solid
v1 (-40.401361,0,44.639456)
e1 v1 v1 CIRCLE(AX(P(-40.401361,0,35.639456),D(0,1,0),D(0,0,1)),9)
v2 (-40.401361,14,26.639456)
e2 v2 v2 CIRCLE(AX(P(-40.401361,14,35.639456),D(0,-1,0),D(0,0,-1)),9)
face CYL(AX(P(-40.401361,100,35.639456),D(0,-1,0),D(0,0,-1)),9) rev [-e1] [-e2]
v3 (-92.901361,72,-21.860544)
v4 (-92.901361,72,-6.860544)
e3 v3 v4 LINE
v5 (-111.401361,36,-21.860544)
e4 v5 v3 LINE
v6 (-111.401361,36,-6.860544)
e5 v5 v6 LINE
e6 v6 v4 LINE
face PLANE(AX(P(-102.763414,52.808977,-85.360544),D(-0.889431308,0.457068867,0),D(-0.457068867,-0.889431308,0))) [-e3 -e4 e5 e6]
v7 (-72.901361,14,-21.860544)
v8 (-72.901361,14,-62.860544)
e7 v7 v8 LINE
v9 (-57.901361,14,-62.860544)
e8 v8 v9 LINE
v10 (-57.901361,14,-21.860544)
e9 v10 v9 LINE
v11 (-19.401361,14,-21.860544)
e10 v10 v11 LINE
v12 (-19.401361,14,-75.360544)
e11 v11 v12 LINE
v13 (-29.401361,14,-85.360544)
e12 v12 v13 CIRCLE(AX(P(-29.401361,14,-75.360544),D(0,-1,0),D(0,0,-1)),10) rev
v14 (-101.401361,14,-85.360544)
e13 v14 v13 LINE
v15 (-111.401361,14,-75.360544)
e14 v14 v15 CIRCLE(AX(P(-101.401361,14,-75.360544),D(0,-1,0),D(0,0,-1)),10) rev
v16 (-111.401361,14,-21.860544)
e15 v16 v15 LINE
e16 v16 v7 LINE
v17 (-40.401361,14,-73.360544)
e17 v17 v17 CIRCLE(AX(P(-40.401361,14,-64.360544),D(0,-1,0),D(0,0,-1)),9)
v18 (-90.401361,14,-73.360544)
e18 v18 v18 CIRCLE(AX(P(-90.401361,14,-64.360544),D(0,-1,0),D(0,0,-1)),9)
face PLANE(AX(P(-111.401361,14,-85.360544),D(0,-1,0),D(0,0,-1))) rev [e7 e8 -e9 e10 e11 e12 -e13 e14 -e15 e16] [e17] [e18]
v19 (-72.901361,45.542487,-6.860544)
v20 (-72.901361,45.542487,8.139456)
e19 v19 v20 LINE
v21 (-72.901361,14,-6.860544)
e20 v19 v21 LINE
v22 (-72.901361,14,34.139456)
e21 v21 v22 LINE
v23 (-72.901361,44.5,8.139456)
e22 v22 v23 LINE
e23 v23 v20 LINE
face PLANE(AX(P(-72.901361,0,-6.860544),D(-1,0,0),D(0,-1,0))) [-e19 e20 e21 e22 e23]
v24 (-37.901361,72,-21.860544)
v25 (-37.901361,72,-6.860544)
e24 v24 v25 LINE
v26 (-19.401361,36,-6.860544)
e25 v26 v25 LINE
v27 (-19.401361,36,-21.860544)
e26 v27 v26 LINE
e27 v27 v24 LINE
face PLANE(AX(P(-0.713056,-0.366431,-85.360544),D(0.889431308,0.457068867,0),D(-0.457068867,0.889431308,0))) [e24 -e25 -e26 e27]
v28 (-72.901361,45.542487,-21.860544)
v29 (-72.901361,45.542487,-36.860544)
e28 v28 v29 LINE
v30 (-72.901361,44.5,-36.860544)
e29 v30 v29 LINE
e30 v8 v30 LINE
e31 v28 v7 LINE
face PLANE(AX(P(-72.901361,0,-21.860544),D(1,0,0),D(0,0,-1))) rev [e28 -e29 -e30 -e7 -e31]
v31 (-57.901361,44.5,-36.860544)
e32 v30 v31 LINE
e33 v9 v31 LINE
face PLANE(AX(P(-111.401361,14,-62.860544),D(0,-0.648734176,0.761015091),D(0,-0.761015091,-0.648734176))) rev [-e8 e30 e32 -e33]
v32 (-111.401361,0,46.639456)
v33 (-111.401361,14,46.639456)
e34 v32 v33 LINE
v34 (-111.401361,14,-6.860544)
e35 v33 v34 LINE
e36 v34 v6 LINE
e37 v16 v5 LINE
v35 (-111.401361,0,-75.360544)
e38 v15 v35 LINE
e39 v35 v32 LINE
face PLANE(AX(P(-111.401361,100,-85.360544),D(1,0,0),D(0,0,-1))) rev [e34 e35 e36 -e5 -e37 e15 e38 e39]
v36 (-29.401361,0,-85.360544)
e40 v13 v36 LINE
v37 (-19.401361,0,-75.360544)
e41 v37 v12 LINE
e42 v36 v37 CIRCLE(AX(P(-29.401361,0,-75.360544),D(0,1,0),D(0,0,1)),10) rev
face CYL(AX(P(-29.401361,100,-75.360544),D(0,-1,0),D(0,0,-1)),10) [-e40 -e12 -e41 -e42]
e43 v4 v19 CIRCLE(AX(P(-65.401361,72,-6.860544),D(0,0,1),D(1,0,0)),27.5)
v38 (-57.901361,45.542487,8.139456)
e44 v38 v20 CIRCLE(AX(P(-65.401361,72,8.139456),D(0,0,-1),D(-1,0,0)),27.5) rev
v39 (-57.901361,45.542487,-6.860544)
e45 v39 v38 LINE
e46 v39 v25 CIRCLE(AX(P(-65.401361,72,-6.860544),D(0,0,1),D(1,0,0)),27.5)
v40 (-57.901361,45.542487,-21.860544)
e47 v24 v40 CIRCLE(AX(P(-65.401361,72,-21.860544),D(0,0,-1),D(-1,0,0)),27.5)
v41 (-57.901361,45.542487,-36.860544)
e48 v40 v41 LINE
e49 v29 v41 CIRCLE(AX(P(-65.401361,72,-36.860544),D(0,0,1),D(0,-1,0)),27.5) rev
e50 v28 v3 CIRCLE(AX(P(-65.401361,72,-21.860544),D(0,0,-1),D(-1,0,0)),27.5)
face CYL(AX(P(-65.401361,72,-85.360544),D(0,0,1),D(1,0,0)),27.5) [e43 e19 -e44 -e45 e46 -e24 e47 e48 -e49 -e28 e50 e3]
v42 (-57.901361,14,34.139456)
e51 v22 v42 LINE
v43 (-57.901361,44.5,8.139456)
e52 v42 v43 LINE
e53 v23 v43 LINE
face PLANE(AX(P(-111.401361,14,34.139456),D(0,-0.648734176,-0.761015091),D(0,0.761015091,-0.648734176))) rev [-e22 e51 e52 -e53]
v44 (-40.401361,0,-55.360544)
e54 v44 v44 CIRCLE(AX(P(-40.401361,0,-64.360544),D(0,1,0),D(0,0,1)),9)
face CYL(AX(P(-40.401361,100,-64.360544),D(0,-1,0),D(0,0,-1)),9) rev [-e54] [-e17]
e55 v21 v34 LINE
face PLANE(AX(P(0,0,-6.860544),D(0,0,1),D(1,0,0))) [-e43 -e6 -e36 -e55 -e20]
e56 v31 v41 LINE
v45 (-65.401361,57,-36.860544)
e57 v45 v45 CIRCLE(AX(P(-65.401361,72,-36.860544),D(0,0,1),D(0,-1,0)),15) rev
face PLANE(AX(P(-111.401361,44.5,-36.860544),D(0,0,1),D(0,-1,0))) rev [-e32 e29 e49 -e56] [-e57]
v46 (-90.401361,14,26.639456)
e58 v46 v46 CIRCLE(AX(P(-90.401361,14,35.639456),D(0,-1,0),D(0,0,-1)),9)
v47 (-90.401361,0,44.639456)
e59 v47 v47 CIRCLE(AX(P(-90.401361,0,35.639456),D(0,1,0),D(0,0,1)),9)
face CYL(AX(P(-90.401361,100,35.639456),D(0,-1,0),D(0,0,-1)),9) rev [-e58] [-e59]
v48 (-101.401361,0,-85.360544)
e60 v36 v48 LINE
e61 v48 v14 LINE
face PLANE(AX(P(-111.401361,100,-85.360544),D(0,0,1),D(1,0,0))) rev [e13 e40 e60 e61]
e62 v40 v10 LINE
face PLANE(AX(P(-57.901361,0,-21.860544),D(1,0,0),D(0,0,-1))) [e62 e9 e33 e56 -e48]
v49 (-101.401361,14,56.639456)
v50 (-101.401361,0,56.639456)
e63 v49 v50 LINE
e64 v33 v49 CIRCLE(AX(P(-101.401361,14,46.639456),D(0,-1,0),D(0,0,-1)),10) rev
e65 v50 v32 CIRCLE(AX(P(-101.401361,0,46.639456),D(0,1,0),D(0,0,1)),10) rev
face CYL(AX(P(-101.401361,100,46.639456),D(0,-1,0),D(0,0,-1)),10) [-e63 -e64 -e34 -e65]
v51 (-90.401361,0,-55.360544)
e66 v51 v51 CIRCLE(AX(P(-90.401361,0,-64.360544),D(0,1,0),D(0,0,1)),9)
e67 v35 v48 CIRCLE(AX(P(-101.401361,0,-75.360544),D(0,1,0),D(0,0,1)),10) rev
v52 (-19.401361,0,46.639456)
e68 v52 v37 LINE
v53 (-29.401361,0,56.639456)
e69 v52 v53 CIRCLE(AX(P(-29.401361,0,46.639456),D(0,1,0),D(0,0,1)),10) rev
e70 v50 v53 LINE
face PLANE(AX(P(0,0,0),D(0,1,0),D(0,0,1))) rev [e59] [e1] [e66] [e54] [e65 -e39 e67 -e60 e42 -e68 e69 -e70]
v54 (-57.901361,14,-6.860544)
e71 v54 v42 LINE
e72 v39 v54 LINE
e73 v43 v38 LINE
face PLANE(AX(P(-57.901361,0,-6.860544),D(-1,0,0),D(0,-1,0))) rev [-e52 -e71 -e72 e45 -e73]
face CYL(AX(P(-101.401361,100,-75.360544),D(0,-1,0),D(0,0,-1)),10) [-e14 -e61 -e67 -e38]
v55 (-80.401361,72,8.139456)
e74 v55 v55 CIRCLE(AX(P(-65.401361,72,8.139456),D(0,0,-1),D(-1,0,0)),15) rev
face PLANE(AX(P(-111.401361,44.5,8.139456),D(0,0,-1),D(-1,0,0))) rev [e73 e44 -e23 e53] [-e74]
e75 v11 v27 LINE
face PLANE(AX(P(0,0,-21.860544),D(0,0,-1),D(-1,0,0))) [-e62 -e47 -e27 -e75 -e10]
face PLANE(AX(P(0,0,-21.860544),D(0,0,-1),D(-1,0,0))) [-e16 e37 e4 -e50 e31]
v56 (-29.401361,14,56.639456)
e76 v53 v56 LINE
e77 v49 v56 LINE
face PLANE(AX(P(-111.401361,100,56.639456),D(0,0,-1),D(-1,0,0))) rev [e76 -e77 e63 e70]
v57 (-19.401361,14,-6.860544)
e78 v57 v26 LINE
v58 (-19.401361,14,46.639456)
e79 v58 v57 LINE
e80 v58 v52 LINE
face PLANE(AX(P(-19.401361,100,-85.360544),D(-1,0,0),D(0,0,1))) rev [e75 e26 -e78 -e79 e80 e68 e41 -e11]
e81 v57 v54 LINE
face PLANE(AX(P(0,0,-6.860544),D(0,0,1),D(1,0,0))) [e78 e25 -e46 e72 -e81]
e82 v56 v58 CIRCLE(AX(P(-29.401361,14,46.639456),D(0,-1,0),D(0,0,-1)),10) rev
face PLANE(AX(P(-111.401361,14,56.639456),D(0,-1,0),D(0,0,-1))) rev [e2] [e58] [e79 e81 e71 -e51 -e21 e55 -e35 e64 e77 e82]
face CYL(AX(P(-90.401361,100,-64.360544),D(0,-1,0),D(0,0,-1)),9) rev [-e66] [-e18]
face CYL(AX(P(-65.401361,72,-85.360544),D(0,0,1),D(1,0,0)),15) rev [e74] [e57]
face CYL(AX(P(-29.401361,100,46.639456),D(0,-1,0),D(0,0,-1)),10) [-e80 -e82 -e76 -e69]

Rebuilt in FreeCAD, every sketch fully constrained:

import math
import FreeCAD as App
import Part
import Sketcher


def edges_at(feature, points):
    """Names of the edges that pass closest to the given points."""
    edges = feature.Shape.Edges
    near = lambda p: min(range(len(edges)), key=lambda i: edges[i].distToShape(Part.Vertex(*p))[0])
    return sorted({f"Edge{near(p) + 1}" for p in points})


def add_polygon(sketch, points):
    """Adds a closed chain of lines whose ends are joined by coincident constraints."""
    first, n = sketch.GeometryCount, len(points)
    for a, b in zip(points, points[1:] + points[:1]):
        sketch.addGeometry(Part.LineSegment(App.Vector(*a, 0), App.Vector(*b, 0)), False)
    for i in range(n):
        sketch.addConstraint(Sketcher.Constraint("Coincident", first + i, 2, first + (i + 1) % n, 1))

doc = App.newDocument("Part")
body = doc.addObject("PartDesign::Body", "Body")

# Sketch on XZ plane
sketch1 = body.newObject("Sketcher::SketchObject", "Sketch")
sketch1.AttachmentSupport = (doc.getObject("XZ_Plane"), [""])
sketch1.MapMode = "FlatFace"
add_polygon(sketch1, [(-111, -85), (-111, 57), (-19, 57), (-19, -85)])  # lines 0-3
sketch1.addGeometry(Part.Circle(App.Vector(-90, 36, 0), App.Vector(0, 0, 1), 9), False)  # 4
sketch1.addGeometry(Part.Circle(App.Vector(-40, 36, 0), App.Vector(0, 0, 1), 9), False)  # 5
sketch1.addGeometry(Part.Circle(App.Vector(-90, -64, 0), App.Vector(0, 0, 1), 9), False)  # 6
sketch1.addGeometry(Part.Circle(App.Vector(-40, -64, 0), App.Vector(0, 0, 1), 9), False)  # 7
sketch1.addConstraint(Sketcher.Constraint("Vertical", 0))
sketch1.addConstraint(Sketcher.Constraint("Horizontal", 1))
sketch1.addConstraint(Sketcher.Constraint("Vertical", 2))
sketch1.addConstraint(Sketcher.Constraint("Horizontal", 3))
sketch1.addConstraint(Sketcher.Constraint("Equal", 4, 5))
sketch1.addConstraint(Sketcher.Constraint("Equal", 5, 6))
sketch1.addConstraint(Sketcher.Constraint("Equal", 6, 7))
sketch1.addConstraint(Sketcher.Constraint("Horizontal", 4, 3, 5, 3))
sketch1.addConstraint(Sketcher.Constraint("Horizontal", 6, 3, 7, 3))
sketch1.addConstraint(Sketcher.Constraint("Vertical", 4, 3, 6, 3))
sketch1.addConstraint(Sketcher.Constraint("Vertical", 5, 3, 7, 3))
sketch1.addConstraint(Sketcher.Constraint("Diameter", 4, 18.0))
sketch1.addConstraint(Sketcher.Constraint("DistanceX", 1, 1, 1, 2, 92.0))
sketch1.addConstraint(Sketcher.Constraint("DistanceY", 0, 1, 0, 2, 142.0))
sketch1.addConstraint(Sketcher.Constraint("DistanceX", 4, 3, 5, 3, 50.0))
sketch1.addConstraint(Sketcher.Constraint("DistanceY", 6, 3, 4, 3, 100.0))
sketch1.addConstraint(Sketcher.Constraint("DistanceX", 0, 2, 4, 3, 21.0))
sketch1.addConstraint(Sketcher.Constraint("DistanceY", 4, 3, 0, 2, 21.0))
sketch1.addConstraint(Sketcher.Constraint("DistanceX", 4, 3, -1, 1, 90.401361))
sketch1.addConstraint(Sketcher.Constraint("DistanceY", -1, 1, 4, 3, 35.639456))
pad1 = body.newObject("PartDesign::Pad", "Pad")
pad1.Profile = sketch1
pad1.Length = 100
pad1.Reversed = True

# Sketch on XY plane
sketch2 = body.newObject("Sketcher::SketchObject", "Sketch001")
sketch2.AttachmentSupport = (doc.getObject("XY_Plane"), [""])
sketch2.MapMode = "FlatFace"
sketch2.AttachmentOffset = App.Placement(App.Vector(0, 0, 56.639456), App.Rotation())
sketch2.addGeometry(Part.LineSegment(App.Vector(-111, 36, 0), App.Vector(-93, 72, 0)), False)
sketch2.addGeometry(Part.ArcOfCircle(Part.Circle(App.Vector(-65, 72, 0), App.Vector(0, 0, 1), 28), math.radians(0), math.radians(180)), False)
sketch2.addGeometry(Part.LineSegment(App.Vector(-38, 72, 0), App.Vector(-19, 36, 0)), False)
sketch2.addGeometry(Part.LineSegment(App.Vector(-19, 36, 0), App.Vector(-19, 100, 0)), False)
sketch2.addGeometry(Part.LineSegment(App.Vector(-19, 100, 0), App.Vector(-111, 100, 0)), False)
sketch2.addGeometry(Part.LineSegment(App.Vector(-111, 100, 0), App.Vector(-111, 36, 0)), False)
sketch2.addGeometry(Part.Circle(App.Vector(-65, 72, 0), App.Vector(0, 0, 1), 15), False)
sketch2.addConstraint(Sketcher.Constraint("Coincident", 0, 2, 1, 2))
sketch2.addConstraint(Sketcher.Constraint("Coincident", 1, 1, 2, 1))
sketch2.addConstraint(Sketcher.Constraint("Coincident", 2, 2, 3, 1))
sketch2.addConstraint(Sketcher.Constraint("Coincident", 3, 2, 4, 1))
sketch2.addConstraint(Sketcher.Constraint("Coincident", 4, 2, 5, 1))
sketch2.addConstraint(Sketcher.Constraint("Coincident", 5, 2, 0, 1))
sketch2.addConstraint(Sketcher.Constraint("Vertical", 3))
sketch2.addConstraint(Sketcher.Constraint("Horizontal", 4))
sketch2.addConstraint(Sketcher.Constraint("Vertical", 5))
sketch2.addConstraint(Sketcher.Constraint("Coincident", 6, 3, 1, 3))
sketch2.addConstraint(Sketcher.Constraint("Horizontal", 6, 3, 0, 2))
sketch2.addConstraint(Sketcher.Constraint("Horizontal", 0, 2, 1, 1))
sketch2.addConstraint(Sketcher.Constraint("Horizontal", 2, 2, 5, 2))
sketch2.addConstraint(Sketcher.Constraint("Equal", 0, 2))
sketch2.addConstraint(Sketcher.Constraint("Diameter", 6, 30.0))
sketch2.addConstraint(Sketcher.Constraint("Radius", 1, 27.5))
sketch2.addConstraint(Sketcher.Constraint("DistanceX", 4, 2, 4, 1, 92.0))
sketch2.addConstraint(Sketcher.Constraint("DistanceY", 3, 1, 3, 2, 64.0))
sketch2.addConstraint(Sketcher.Constraint("DistanceY", -1, 1, 1, 3, 72.0))
sketch2.addConstraint(Sketcher.Constraint("DistanceY", -1, 1, 2, 2, 36.0))
sketch2.addConstraint(Sketcher.Constraint("DistanceX", 1, 3, -1, 1, 65.401361))
pocket1 = body.newObject("PartDesign::Pocket", "Pocket")
pocket1.Profile = sketch2
pocket1.Length = 142

# Sketch on YZ plane
sketch3 = body.newObject("Sketcher::SketchObject", "Sketch002")
sketch3.AttachmentSupport = (doc.getObject("YZ_Plane"), [""])
sketch3.MapMode = "FlatFace"
sketch3.AttachmentOffset = App.Placement(App.Vector(0, 0, -19.401361), App.Rotation())
add_polygon(sketch3, [(44, -37), (14, -63), (14, -85), (100, -85), (100, -37)])  # lines 0-4
add_polygon(sketch3, [(14, 57), (14, 34), (44, 8), (100, 8), (100, 57)])  # lines 5-9
sketch3.addConstraint(Sketcher.Constraint("Vertical", 1))
sketch3.addConstraint(Sketcher.Constraint("Horizontal", 2))
sketch3.addConstraint(Sketcher.Constraint("Vertical", 3))
sketch3.addConstraint(Sketcher.Constraint("Horizontal", 4))
sketch3.addConstraint(Sketcher.Constraint("Vertical", 5))
sketch3.addConstraint(Sketcher.Constraint("Horizontal", 7))
sketch3.addConstraint(Sketcher.Constraint("Vertical", 8))
sketch3.addConstraint(Sketcher.Constraint("Horizontal", 9))
sketch3.addConstraint(Sketcher.Constraint("Vertical", 1, 2, 5, 2))
sketch3.addConstraint(Sketcher.Constraint("Vertical", 4, 2, 6, 2))
sketch3.addConstraint(Sketcher.Constraint("Vertical", 3, 2, 7, 2))
sketch3.addConstraint(Sketcher.Constraint("Equal", 1, 5))
sketch3.addConstraint(Sketcher.Constraint("Equal", 3, 8))
sketch3.addConstraint(Sketcher.Constraint("DistanceX", 4, 2, 4, 1, 55.0))
sketch3.addConstraint(Sketcher.Constraint("DistanceX", 2, 1, 2, 2, 85.5))
sketch3.addConstraint(Sketcher.Constraint("DistanceY", 1, 2, 1, 1, 22.5))
sketch3.addConstraint(Sketcher.Constraint("DistanceY", 3, 1, 3, 2, 48.5))
sketch3.addConstraint(Sketcher.Constraint("DistanceX", -1, 1, 0, 2, 14.0))
sketch3.addConstraint(Sketcher.Constraint("DistanceY", 4, 2, 5, 2, 71.0))
sketch3.addConstraint(Sketcher.Constraint("DistanceY", 0, 2, -1, 1, 62.860544))
pocket2 = body.newObject("PartDesign::Pocket", "Pocket001")
pocket2.Profile = sketch3
pocket2.Length = 92

# Sketch on XY plane
sketch4 = body.newObject("Sketcher::SketchObject", "Sketch003")
sketch4.AttachmentSupport = (doc.getObject("XY_Plane"), [""])
sketch4.MapMode = "FlatFace"
sketch4.AttachmentOffset = App.Placement(App.Vector(0, 0, 56.639456), App.Rotation())
sketch4.addGeometry(Part.LineSegment(App.Vector(-93, 72, 0), App.Vector(-111, 36, 0)), False)
sketch4.addGeometry(Part.LineSegment(App.Vector(-111, 36, 0), App.Vector(-111, 14, 0)), False)
sketch4.addGeometry(Part.LineSegment(App.Vector(-111, 14, 0), App.Vector(-73, 14, 0)), False)
sketch4.addGeometry(Part.LineSegment(App.Vector(-73, 14, 0), App.Vector(-73, 46, 0)), False)
sketch4.addGeometry(Part.ArcOfCircle(Part.Circle(App.Vector(-65, 72, 0), App.Vector(0, 0, 1), 27), math.radians(180), math.radians(254)), False)
sketch4.addGeometry(Part.LineSegment(App.Vector(-19, 36, 0), App.Vector(-38, 72, 0)), False)
sketch4.addGeometry(Part.ArcOfCircle(Part.Circle(App.Vector(-65, 72, 0), App.Vector(0, 0, 1), 28), math.radians(-74), math.radians(0)), False)
sketch4.addGeometry(Part.LineSegment(App.Vector(-58, 46, 0), App.Vector(-58, 14, 0)), False)
sketch4.addGeometry(Part.LineSegment(App.Vector(-58, 14, 0), App.Vector(-19, 14, 0)), False)
sketch4.addGeometry(Part.LineSegment(App.Vector(-19, 14, 0), App.Vector(-19, 36, 0)), False)
sketch4.addConstraint(Sketcher.Constraint("Coincident", 0, 2, 1, 1))
sketch4.addConstraint(Sketcher.Constraint("Coincident", 1, 2, 2, 1))
sketch4.addConstraint(Sketcher.Constraint("Coincident", 2, 2, 3, 1))
sketch4.addConstraint(Sketcher.Constraint("Coincident", 3, 2, 4, 2))
sketch4.addConstraint(Sketcher.Constraint("Coincident", 4, 1, 0, 1))
sketch4.addConstraint(Sketcher.Constraint("Coincident", 5, 2, 6, 2))
sketch4.addConstraint(Sketcher.Constraint("Coincident", 6, 1, 7, 1))
sketch4.addConstraint(Sketcher.Constraint("Coincident", 7, 2, 8, 1))
sketch4.addConstraint(Sketcher.Constraint("Coincident", 8, 2, 9, 1))
sketch4.addConstraint(Sketcher.Constraint("Coincident", 9, 2, 5, 1))
sketch4.addConstraint(Sketcher.Constraint("Vertical", 1))
sketch4.addConstraint(Sketcher.Constraint("Horizontal", 2))
sketch4.addConstraint(Sketcher.Constraint("Vertical", 3))
sketch4.addConstraint(Sketcher.Constraint("Vertical", 7))
sketch4.addConstraint(Sketcher.Constraint("Horizontal", 8))
sketch4.addConstraint(Sketcher.Constraint("Vertical", 9))
sketch4.addConstraint(Sketcher.Constraint("Coincident", 6, 3, 4, 3))
sketch4.addConstraint(Sketcher.Constraint("Equal", 4, 6))
sketch4.addConstraint(Sketcher.Constraint("Horizontal", 6, 3, 4, 1))
sketch4.addConstraint(Sketcher.Constraint("Horizontal", 4, 1, 5, 2))
sketch4.addConstraint(Sketcher.Constraint("Horizontal", 3, 2, 6, 1))
sketch4.addConstraint(Sketcher.Constraint("Horizontal", 2, 2, 7, 2))
sketch4.addConstraint(Sketcher.Constraint("Horizontal", 0, 2, 9, 2))
sketch4.addConstraint(Sketcher.Constraint("Equal", 2, 8))
sketch4.addConstraint(Sketcher.Constraint("Radius", 4, 27.5))
sketch4.addConstraint(Sketcher.Constraint("DistanceY", 1, 2, 1, 1, 22.0))
sketch4.addConstraint(Sketcher.Constraint("DistanceX", 2, 1, 2, 2, 38.5))
sketch4.addConstraint(Sketcher.Constraint("DistanceY", -1, 1, 4, 3, 72.0))
sketch4.addConstraint(Sketcher.Constraint("DistanceY", -1, 1, 0, 2, 36.0))
sketch4.addConstraint(Sketcher.Constraint("DistanceX", 0, 2, 4, 3, 46.0))
sketch4.addConstraint(Sketcher.Constraint("DistanceX", 4, 3, -1, 1, 65.401361))
pocket3 = body.newObject("PartDesign::Pocket", "Pocket002")
pocket3.Profile = sketch4
pocket3.Length = 63.5

# Sketch on XY plane
sketch5 = body.newObject("Sketcher::SketchObject", "Sketch004")
sketch5.AttachmentSupport = (doc.getObject("XY_Plane"), [""])
sketch5.MapMode = "FlatFace"
sketch5.AttachmentOffset = App.Placement(App.Vector(0, 0, -85.360544), App.Rotation())
sketch5.addGeometry(Part.LineSegment(App.Vector(-58, 14, 0), App.Vector(-58, 46, 0)), False)
sketch5.addGeometry(Part.ArcOfCircle(Part.Circle(App.Vector(-65, 72, 0), App.Vector(0, 0, 1), 28), math.radians(-74), math.radians(0)), False)
sketch5.addGeometry(Part.LineSegment(App.Vector(-38, 72, 0), App.Vector(-19, 36, 0)), False)
sketch5.addGeometry(Part.LineSegment(App.Vector(-19, 36, 0), App.Vector(-19, 14, 0)), False)
sketch5.addGeometry(Part.LineSegment(App.Vector(-19, 14, 0), App.Vector(-58, 14, 0)), False)
sketch5.addGeometry(Part.ArcOfCircle(Part.Circle(App.Vector(-65, 72, 0), App.Vector(0, 0, 1), 27), math.radians(180), math.radians(254)), False)
sketch5.addGeometry(Part.LineSegment(App.Vector(-73, 46, 0), App.Vector(-73, 14, 0)), False)
sketch5.addGeometry(Part.LineSegment(App.Vector(-73, 14, 0), App.Vector(-111, 14, 0)), False)
sketch5.addGeometry(Part.LineSegment(App.Vector(-111, 14, 0), App.Vector(-111, 36, 0)), False)
sketch5.addGeometry(Part.LineSegment(App.Vector(-111, 36, 0), App.Vector(-93, 72, 0)), False)
sketch5.addConstraint(Sketcher.Constraint("Coincident", 0, 2, 1, 1))
sketch5.addConstraint(Sketcher.Constraint("Coincident", 1, 2, 2, 1))
sketch5.addConstraint(Sketcher.Constraint("Coincident", 2, 2, 3, 1))
sketch5.addConstraint(Sketcher.Constraint("Coincident", 3, 2, 4, 1))
sketch5.addConstraint(Sketcher.Constraint("Coincident", 4, 2, 0, 1))
sketch5.addConstraint(Sketcher.Constraint("Coincident", 5, 2, 6, 1))
sketch5.addConstraint(Sketcher.Constraint("Coincident", 6, 2, 7, 1))
sketch5.addConstraint(Sketcher.Constraint("Coincident", 7, 2, 8, 1))
sketch5.addConstraint(Sketcher.Constraint("Coincident", 8, 2, 9, 1))
sketch5.addConstraint(Sketcher.Constraint("Coincident", 9, 2, 5, 1))
sketch5.addConstraint(Sketcher.Constraint("Vertical", 0))
sketch5.addConstraint(Sketcher.Constraint("Vertical", 3))
sketch5.addConstraint(Sketcher.Constraint("Horizontal", 4))
sketch5.addConstraint(Sketcher.Constraint("Vertical", 6))
sketch5.addConstraint(Sketcher.Constraint("Horizontal", 7))
sketch5.addConstraint(Sketcher.Constraint("Vertical", 8))
sketch5.addConstraint(Sketcher.Constraint("Coincident", 5, 3, 1, 3))
sketch5.addConstraint(Sketcher.Constraint("Equal", 1, 5))
sketch5.addConstraint(Sketcher.Constraint("Horizontal", 5, 3, 1, 2))
sketch5.addConstraint(Sketcher.Constraint("Horizontal", 0, 2, 5, 2))
sketch5.addConstraint(Sketcher.Constraint("Horizontal", 4, 2, 6, 2))
sketch5.addConstraint(Sketcher.Constraint("Horizontal", 2, 2, 8, 2))
sketch5.addConstraint(Sketcher.Constraint("Horizontal", 1, 2, 9, 2))
sketch5.addConstraint(Sketcher.Constraint("Equal", 4, 7))
sketch5.addConstraint(Sketcher.Constraint("Radius", 1, 27.5))
sketch5.addConstraint(Sketcher.Constraint("DistanceY", 3, 2, 3, 1, 22.0))
sketch5.addConstraint(Sketcher.Constraint("DistanceX", 4, 2, 4, 1, 38.5))
sketch5.addConstraint(Sketcher.Constraint("DistanceY", -1, 1, 1, 3, 72.0))
sketch5.addConstraint(Sketcher.Constraint("DistanceY", -1, 1, 2, 2, 36.0))
sketch5.addConstraint(Sketcher.Constraint("DistanceX", 0, 2, 1, 2, 20.0))
sketch5.addConstraint(Sketcher.Constraint("DistanceX", 1, 3, -1, 1, 65.401361))
pocket4 = body.newObject("PartDesign::Pocket", "Pocket003")
pocket4.Profile = sketch5
pocket4.Length = 63.5
pocket4.Reversed = True
doc.recompute()

fillet = body.newObject("PartDesign::Fillet", "Fillet")
fillet.Base = (pocket4, edges_at(pocket4, [
    (-19.401, 7, -85.361),
    (-111.401, 7, -85.361),
    (-19.401, 7, 56.639),
    (-111.401, 7, 56.639),
]))
fillet.Radius = 10

doc.recompute()
